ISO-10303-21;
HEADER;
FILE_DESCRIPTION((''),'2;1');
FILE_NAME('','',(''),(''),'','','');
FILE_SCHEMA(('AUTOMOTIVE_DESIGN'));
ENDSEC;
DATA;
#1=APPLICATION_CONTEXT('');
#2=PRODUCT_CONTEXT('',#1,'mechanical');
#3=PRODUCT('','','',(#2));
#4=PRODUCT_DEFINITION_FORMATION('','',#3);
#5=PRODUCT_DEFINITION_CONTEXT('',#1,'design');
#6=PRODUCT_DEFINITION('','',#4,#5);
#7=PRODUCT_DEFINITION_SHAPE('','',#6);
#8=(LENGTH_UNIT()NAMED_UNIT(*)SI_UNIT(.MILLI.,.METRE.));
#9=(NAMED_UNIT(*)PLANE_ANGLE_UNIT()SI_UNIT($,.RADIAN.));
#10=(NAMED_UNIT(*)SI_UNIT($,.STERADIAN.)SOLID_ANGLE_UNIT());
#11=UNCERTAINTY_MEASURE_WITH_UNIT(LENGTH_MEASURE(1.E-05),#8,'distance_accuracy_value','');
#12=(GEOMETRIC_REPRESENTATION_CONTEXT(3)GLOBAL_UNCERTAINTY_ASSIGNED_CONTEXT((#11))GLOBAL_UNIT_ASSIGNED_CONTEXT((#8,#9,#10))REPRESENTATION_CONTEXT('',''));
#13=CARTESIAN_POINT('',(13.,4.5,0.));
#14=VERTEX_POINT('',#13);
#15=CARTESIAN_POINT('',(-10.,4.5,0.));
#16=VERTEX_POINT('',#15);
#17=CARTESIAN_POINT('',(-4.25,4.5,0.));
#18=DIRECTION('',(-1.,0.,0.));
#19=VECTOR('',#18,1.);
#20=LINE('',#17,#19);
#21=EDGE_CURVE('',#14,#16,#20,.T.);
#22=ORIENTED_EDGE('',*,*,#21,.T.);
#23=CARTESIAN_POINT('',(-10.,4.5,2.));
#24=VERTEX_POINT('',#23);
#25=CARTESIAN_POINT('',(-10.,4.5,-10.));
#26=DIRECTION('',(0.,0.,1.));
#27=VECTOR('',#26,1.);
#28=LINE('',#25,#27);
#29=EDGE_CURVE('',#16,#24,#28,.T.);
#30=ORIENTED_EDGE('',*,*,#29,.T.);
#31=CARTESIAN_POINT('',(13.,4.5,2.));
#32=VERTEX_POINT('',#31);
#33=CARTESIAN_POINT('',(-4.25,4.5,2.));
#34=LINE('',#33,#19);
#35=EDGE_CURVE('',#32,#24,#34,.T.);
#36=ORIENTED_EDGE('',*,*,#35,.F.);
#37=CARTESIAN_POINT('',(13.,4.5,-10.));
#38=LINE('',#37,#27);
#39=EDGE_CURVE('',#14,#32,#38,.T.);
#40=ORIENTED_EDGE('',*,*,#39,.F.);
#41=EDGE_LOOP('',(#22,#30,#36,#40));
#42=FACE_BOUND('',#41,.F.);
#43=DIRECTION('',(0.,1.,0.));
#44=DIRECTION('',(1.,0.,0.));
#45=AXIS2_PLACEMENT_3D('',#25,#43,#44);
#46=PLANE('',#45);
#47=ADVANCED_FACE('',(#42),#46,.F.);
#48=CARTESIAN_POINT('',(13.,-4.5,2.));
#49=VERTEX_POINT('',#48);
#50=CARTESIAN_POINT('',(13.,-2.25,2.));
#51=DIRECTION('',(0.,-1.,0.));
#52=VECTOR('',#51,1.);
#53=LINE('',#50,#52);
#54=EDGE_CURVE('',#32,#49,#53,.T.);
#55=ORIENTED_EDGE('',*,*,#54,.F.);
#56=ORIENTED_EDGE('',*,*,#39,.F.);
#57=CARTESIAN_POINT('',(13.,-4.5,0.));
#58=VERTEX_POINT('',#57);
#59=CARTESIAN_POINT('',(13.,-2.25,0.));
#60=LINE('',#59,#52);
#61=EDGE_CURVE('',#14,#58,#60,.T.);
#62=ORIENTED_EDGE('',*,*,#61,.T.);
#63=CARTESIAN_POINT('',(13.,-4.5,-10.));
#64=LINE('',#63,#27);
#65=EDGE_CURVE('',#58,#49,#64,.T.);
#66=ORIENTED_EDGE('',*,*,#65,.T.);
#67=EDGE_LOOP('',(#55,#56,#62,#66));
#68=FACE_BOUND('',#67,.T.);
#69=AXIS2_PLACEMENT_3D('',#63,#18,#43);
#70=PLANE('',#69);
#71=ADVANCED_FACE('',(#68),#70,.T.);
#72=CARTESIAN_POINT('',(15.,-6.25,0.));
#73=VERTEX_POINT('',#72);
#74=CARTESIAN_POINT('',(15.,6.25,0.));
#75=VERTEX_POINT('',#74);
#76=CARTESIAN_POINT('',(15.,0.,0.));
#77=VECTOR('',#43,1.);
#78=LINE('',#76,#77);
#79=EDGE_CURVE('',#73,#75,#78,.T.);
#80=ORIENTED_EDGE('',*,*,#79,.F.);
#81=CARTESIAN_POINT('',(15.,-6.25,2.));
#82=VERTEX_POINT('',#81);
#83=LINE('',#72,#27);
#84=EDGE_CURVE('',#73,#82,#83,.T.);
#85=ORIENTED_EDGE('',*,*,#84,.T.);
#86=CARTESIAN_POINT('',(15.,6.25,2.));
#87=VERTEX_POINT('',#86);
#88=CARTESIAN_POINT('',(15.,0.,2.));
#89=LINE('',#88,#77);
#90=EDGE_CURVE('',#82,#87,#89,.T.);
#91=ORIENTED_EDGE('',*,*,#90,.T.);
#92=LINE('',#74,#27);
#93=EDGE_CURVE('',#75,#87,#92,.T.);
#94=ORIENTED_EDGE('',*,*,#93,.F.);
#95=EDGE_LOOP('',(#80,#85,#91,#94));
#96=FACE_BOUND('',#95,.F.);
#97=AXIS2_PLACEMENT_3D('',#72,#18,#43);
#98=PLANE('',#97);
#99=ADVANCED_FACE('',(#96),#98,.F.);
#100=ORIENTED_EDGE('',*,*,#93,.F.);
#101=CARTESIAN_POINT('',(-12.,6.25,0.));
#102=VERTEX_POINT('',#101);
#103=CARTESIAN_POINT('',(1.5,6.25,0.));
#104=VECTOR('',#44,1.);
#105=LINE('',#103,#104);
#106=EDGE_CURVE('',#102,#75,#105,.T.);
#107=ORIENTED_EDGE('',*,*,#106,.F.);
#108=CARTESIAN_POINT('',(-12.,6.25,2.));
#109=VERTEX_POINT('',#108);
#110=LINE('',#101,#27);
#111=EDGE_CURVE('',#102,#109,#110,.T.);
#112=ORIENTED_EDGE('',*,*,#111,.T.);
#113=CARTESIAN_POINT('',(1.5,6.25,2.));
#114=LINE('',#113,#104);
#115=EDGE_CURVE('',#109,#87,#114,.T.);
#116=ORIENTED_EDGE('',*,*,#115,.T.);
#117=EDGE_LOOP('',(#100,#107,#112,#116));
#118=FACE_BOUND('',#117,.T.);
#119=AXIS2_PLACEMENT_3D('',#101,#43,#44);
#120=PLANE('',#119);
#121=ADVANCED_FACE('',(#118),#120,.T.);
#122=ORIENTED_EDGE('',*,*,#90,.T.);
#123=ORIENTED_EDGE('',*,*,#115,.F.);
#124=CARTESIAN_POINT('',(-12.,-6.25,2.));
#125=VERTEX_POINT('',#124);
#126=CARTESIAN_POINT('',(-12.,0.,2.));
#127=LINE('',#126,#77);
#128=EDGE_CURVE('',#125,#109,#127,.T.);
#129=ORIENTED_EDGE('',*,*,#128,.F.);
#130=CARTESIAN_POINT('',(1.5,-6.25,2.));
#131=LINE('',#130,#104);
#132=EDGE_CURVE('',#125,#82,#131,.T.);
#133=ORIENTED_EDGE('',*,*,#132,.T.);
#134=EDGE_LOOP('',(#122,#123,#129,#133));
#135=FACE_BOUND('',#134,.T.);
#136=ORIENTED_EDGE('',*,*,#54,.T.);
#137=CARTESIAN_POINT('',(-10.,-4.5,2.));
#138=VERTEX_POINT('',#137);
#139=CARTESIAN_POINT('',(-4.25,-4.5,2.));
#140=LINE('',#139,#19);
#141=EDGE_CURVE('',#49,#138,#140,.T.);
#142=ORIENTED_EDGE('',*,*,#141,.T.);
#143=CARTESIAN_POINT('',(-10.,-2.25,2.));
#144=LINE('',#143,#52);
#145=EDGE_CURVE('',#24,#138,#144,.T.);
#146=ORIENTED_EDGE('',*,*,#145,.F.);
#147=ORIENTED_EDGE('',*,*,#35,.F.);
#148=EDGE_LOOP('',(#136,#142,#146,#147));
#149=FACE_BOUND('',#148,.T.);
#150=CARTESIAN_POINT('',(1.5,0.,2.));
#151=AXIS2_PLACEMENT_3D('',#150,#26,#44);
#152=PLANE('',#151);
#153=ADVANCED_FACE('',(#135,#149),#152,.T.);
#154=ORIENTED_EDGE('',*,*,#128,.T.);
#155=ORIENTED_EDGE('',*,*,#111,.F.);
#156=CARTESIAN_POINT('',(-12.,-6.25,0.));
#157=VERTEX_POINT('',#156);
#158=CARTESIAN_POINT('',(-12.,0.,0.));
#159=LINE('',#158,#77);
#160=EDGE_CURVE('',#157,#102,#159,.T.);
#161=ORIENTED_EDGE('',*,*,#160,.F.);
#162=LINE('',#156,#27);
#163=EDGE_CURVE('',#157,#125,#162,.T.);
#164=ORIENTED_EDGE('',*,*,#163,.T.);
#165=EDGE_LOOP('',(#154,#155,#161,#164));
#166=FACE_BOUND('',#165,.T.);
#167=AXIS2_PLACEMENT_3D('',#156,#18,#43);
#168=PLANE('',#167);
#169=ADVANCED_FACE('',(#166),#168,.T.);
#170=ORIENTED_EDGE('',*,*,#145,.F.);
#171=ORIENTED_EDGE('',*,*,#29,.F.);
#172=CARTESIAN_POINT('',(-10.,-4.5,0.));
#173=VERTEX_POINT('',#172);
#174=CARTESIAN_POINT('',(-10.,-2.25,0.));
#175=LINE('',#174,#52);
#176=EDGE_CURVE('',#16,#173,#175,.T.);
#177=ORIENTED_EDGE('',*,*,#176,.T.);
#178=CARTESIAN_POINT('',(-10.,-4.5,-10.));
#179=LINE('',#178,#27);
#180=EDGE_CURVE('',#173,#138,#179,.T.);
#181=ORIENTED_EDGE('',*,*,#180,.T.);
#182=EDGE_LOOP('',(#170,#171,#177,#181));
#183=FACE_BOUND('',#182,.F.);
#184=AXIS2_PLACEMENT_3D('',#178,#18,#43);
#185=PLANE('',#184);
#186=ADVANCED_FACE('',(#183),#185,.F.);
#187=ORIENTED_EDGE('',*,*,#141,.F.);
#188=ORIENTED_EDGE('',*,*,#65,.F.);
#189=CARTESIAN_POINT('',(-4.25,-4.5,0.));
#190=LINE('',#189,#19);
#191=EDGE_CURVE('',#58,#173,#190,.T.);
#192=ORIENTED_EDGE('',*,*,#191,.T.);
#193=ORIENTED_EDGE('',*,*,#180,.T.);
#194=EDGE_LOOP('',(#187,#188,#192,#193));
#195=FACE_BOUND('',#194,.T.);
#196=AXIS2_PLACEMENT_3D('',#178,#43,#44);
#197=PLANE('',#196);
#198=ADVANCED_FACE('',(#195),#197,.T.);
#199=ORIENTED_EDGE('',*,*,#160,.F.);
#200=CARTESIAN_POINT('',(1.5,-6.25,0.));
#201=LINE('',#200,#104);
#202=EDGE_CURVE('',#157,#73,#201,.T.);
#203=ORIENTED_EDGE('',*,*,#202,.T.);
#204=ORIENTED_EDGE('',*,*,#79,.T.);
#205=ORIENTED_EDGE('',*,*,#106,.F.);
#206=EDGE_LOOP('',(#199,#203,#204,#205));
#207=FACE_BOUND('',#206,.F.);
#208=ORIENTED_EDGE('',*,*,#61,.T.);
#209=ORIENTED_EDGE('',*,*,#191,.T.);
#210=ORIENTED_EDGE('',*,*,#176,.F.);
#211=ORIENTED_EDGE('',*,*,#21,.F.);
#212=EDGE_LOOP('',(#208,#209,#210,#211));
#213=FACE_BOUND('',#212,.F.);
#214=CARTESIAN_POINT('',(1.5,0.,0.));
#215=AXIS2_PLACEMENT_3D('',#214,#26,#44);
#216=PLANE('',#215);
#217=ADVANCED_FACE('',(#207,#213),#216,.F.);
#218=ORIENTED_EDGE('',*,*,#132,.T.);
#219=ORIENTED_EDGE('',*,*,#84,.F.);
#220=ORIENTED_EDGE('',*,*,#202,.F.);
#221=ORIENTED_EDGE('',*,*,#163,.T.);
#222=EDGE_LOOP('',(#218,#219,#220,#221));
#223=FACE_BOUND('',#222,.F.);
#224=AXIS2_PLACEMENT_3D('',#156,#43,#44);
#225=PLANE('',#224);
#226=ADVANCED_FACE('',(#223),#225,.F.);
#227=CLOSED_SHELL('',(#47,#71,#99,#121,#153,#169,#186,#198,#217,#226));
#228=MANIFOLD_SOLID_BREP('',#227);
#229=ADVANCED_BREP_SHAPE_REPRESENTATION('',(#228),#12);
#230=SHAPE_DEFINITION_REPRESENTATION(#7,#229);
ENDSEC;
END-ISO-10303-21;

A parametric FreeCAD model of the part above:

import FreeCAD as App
import Part
import Sketcher
Q = App.Units.Quantity

doc = App.newDocument("Part")
body = doc.addObject("PartDesign::Body", "Body")

# Sketch on XY plane
sketch1 = body.newObject("Sketcher::SketchObject", "Sketch")
sketch1.AttachmentSupport = (doc.getObject("XY_Plane"), [""])
sketch1.MapMode = "FlatFace"
sketch1.addGeometry([
    Part.LineSegment(App.Vector(-10, 4, 0), App.Vector(-10, -4, 0)),
    Part.LineSegment(App.Vector(-10, -4, 0), App.Vector(13, -4, 0)),
    Part.LineSegment(App.Vector(13, -4, 0), App.Vector(13, 4, 0)),
    Part.LineSegment(App.Vector(13, 4, 0), App.Vector(-10, 4, 0)),
], False)
sketch1.addConstraint([
    Sketcher.Constraint("Coincident", 0, 2, 1, 1),
    Sketcher.Constraint("Coincident", 1, 2, 2, 1),
    Sketcher.Constraint("Coincident", 2, 2, 3, 1),
    Sketcher.Constraint("Coincident", 3, 2, 0, 1),
    Sketcher.Constraint("Vertical", 0),
    Sketcher.Constraint("Horizontal", 1),
    Sketcher.Constraint("Vertical", 2),
    Sketcher.Constraint("Horizontal", 3),
    Sketcher.Constraint("DistanceX", 1, 1, 1, 2, Q("23 mm")),
    Sketcher.Constraint("DistanceY", 0, 2, 0, 1, Q("9 mm")),
    Sketcher.Constraint("DistanceX", 0, 2, -1, 1, Q("10 mm")),
    Sketcher.Constraint("DistanceY", 0, 2, -1, 1, Q("4.5 mm")),
])
pad1 = body.newObject("PartDesign::Pad", "Pad")
pad1.Profile = sketch1
pad1.Length = 30
body2 = doc.addObject("PartDesign::Body", "Body001")
doc.recompute()

body.Placement = App.Placement(App.Vector(0, 0, -10), App.Rotation(App.Vector(0, 0, 1), 0))
boolean = body2.newObject("PartDesign::Boolean", "Boolean")
boolean.Type = "Fuse"
boolean.addObjects([body])
body3 = doc.addObject("PartDesign::Body", "Body002")

# Sketch on XY plane
sketch2 = body3.newObject("Sketcher::SketchObject", "Sketch001")
sketch2.AttachmentSupport = (doc.getObject("XY_Plane002"), [""])
sketch2.MapMode = "FlatFace"
sketch2.addGeometry([
    Part.LineSegment(App.Vector(-12, 6, 0), App.Vector(-12, -6, 0)),
    Part.LineSegment(App.Vector(-12, -6, 0), App.Vector(15, -6, 0)),
    Part.LineSegment(App.Vector(15, -6, 0), App.Vector(15, 6, 0)),
    Part.LineSegment(App.Vector(15, 6, 0), App.Vector(-12, 6, 0)),
], False)
sketch2.addConstraint([
    Sketcher.Constraint("Coincident", 0, 2, 1, 1),
    Sketcher.Constraint("Coincident", 1, 2, 2, 1),
    Sketcher.Constraint("Coincident", 2, 2, 3, 1),
    Sketcher.Constraint("Coincident", 3, 2, 0, 1),
    Sketcher.Constraint("Vertical", 0),
    Sketcher.Constraint("Horizontal", 1),
    Sketcher.Constraint("Vertical", 2),
    Sketcher.Constraint("Horizontal", 3),
    Sketcher.Constraint("DistanceX", 1, 1, 1, 2, Q("27 mm")),
    Sketcher.Constraint("DistanceY", 0, 2, 0, 1, Q("12.5 mm")),
    Sketcher.Constraint("DistanceX", 0, 2, -1, 1, Q("12 mm")),
    Sketcher.Constraint("DistanceY", 0, 2, -1, 1, Q("6.25 mm")),
])
pad2 = body3.newObject("PartDesign::Pad", "Pad001")
pad2.Profile = sketch2
pad2.Length = 2
doc.recompute()

boolean2 = body3.newObject("PartDesign::Boolean", "Boolean001")
boolean2.Type = "Cut"
boolean2.addObjects([body2])

doc.recompute()
